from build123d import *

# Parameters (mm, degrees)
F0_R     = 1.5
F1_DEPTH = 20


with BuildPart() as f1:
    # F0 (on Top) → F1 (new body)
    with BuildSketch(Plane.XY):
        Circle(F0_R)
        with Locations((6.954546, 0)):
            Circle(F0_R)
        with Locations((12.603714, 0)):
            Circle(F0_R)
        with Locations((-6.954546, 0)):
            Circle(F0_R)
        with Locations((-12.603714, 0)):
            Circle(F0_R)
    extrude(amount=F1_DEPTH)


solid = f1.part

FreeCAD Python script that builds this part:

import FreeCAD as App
import Part
import Sketcher

V = App.Vector

doc = App.newDocument("Part")
body = doc.addObject("PartDesign::Body", "Body")
body.AllowCompound = True

sketch1 = body.newObject("Sketcher::SketchObject", "Sketch")
sketch1.AttachmentSupport = (doc.getObject("XY_Plane"), [""])
sketch1.MapMode = "FlatFace"
sketch1.addGeometry(Part.Circle(V(0, 0, 0), V(0, 0, 1), 1.5), False)
sketch1.addGeometry(Part.Circle(V(6.954546, 0, 0), V(0, 0, 1), 1.5), False)
sketch1.addGeometry(Part.Circle(V(12.603714, 0, 0), V(0, 0, 1), 1.5), False)
sketch1.addGeometry(Part.Circle(V(-6.954546, 0, 0), V(0, 0, 1), 1.5), False)
sketch1.addGeometry(Part.Circle(V(-12.603714, 0, 0), V(0, 0, 1), 1.5), False)
sketch1.addConstraint(Sketcher.Constraint("Coincident", 0, 3, -1, 1))
sketch1.addConstraint(Sketcher.Constraint("Equal", 0, 1))
sketch1.addConstraint(Sketcher.Constraint("Equal", 1, 2))
sketch1.addConstraint(Sketcher.Constraint("Equal", 2, 3))
sketch1.addConstraint(Sketcher.Constraint("Equal", 3, 4))
sketch1.addConstraint(Sketcher.Constraint("Symmetric", 1, 3, 3, 3, -1, 1))
sketch1.addConstraint(Sketcher.Constraint("Symmetric", 2, 3, 4, 3, -1, 1))
sketch1.addConstraint(Sketcher.Constraint("PointOnObject", 1, 3, -1))
sketch1.addConstraint(Sketcher.Constraint("PointOnObject", 2, 3, -1))
sketch1.addConstraint(Sketcher.Constraint("Diameter", 0, 3.0))
sketch1.addConstraint(Sketcher.Constraint("DistanceX", 1, 3, 2, 3, 5.649168))
sketch1.addConstraint(Sketcher.Constraint("DistanceX", 3, 3, 1, 3, 13.909092))
pad1 = body.newObject("PartDesign::Pad", "Pad")
pad1.Profile = sketch1
pad1.Length = 20

doc.recompute()
